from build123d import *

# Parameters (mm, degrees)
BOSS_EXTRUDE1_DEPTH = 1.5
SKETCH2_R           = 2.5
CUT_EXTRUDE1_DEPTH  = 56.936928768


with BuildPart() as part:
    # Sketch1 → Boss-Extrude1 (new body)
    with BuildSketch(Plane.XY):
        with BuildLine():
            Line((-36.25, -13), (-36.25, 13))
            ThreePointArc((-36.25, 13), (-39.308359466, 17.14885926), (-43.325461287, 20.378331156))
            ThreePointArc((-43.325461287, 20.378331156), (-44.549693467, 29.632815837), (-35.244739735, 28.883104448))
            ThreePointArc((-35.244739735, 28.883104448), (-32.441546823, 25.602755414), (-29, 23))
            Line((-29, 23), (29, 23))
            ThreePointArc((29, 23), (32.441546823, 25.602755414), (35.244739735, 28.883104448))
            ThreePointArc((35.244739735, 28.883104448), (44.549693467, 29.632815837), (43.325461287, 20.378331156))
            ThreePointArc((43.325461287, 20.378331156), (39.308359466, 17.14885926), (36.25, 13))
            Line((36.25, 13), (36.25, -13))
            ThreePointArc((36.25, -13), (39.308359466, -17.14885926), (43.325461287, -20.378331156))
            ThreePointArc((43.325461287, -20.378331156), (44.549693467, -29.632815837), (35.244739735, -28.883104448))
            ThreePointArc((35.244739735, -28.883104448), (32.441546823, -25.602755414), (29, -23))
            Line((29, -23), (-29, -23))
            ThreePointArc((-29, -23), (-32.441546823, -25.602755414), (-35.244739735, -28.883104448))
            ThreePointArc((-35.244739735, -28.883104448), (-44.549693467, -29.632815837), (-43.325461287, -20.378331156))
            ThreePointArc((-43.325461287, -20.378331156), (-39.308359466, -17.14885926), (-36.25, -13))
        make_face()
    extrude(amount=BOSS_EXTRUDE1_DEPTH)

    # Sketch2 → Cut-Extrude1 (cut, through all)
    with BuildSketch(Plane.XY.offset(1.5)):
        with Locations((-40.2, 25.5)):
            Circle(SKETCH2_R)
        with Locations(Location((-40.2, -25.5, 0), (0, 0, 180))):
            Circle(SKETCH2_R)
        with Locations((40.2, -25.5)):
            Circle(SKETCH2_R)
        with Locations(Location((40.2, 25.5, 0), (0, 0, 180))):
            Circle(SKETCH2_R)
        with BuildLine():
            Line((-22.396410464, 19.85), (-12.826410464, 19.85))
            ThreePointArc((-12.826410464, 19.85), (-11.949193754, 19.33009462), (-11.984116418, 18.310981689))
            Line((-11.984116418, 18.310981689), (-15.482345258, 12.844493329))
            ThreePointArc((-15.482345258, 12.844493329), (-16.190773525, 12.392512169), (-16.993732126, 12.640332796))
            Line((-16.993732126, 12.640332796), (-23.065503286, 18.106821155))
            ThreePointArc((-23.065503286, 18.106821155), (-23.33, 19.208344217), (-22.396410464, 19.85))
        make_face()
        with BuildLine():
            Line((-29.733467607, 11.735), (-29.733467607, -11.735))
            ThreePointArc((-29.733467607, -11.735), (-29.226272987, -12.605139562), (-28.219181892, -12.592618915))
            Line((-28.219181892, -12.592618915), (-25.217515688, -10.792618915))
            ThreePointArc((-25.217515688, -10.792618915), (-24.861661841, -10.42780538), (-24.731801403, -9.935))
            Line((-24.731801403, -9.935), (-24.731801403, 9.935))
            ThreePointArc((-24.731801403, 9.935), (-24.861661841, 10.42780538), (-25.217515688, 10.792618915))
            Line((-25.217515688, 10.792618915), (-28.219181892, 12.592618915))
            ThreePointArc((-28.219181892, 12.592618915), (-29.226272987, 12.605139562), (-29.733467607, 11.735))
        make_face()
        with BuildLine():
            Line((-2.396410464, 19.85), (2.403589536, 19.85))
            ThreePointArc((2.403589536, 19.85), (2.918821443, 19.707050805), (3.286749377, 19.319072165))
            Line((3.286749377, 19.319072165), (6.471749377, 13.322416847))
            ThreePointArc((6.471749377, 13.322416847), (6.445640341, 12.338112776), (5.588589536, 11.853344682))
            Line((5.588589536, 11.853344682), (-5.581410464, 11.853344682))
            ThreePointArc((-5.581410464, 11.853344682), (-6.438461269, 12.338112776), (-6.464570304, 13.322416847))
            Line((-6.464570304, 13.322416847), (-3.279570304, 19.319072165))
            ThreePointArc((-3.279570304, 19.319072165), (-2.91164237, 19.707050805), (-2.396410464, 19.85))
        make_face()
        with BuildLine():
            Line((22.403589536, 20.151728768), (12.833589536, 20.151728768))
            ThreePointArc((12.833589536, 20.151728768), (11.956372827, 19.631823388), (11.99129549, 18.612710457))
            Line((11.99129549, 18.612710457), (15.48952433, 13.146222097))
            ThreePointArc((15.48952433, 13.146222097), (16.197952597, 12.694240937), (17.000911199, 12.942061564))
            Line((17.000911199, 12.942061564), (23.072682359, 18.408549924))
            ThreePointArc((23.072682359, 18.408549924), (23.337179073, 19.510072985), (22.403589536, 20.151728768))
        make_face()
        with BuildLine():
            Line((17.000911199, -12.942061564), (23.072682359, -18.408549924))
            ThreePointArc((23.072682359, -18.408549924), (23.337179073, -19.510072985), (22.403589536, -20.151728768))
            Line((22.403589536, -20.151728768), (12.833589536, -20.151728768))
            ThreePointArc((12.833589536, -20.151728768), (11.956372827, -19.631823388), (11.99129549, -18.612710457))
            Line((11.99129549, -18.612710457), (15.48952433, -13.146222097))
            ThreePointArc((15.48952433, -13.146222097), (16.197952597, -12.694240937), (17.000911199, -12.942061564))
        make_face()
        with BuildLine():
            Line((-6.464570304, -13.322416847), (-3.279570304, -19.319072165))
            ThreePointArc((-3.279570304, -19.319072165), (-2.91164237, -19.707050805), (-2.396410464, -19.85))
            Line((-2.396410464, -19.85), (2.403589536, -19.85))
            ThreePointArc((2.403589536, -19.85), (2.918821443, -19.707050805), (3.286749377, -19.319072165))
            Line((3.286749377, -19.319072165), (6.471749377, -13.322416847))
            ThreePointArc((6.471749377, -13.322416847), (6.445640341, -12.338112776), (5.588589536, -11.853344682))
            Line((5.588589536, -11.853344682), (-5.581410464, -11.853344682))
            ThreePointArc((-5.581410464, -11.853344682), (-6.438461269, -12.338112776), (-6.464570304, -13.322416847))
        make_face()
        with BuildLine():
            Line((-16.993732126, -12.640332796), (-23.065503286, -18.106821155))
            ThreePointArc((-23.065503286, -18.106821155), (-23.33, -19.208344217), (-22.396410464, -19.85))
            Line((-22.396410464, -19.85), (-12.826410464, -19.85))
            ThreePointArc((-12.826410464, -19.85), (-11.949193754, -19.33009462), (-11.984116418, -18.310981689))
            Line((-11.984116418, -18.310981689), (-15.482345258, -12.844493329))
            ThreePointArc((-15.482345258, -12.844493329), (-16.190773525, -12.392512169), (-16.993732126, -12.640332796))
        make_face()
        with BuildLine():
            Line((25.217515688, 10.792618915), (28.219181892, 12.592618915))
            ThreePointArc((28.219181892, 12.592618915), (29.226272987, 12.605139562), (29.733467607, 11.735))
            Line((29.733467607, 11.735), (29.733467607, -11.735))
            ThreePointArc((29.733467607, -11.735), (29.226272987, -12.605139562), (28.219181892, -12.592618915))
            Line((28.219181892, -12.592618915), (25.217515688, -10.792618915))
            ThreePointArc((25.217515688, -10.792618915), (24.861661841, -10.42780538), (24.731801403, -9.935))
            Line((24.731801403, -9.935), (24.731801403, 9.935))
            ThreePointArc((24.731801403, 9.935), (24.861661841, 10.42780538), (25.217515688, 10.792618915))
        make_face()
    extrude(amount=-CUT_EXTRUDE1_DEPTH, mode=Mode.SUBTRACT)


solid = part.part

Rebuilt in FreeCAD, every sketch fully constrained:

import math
import FreeCAD as App
import Part
import Sketcher
from FreeCAD import Vector
Q = App.Units.Quantity

doc = App.newDocument("Part")
params = doc.addObject("Spreadsheet::Sheet", "Params")
for row, (alias, value) in enumerate([
    ("sketch1_radius", "20 mm"),
    ("sketch1_radius2", "6 mm"),
    ("sketch1_width", "58 mm"),
    ("sketch1_height", "26 mm"),
    ("pad1_length", "1.5 mm"),
    ("sketch2_diameter", "5 mm"),
    ("sketch2_radius", "1 mm"),
    ("sketch2_width", "4.8 mm"),
    ("sketch2_length", "3.5 mm"),
    ("sketch2_width2", "9.57 mm"),
], start=1):
    params.set(f"A{row}", alias)
    params.set(f"B{row}", "=" + value)
    params.setAlias(f"B{row}", alias)

body = doc.addObject("PartDesign::Body", "Body")

# Sketch on XY plane
sketch1 = body.newObject("Sketcher::SketchObject", "Sketch")
sketch1.AttachmentSupport = (doc.getObject("XY_Plane"), [""])
sketch1.MapMode = "FlatFace"
sketch1.addGeometry([
    Part.LineSegment(Vector(-36.25, 13, 0), Vector(-36.25, -13, 0)),  # 0
    Part.ArcOfCircle(Part.Circle(Vector(-53.743666, -3.306102, 0), Vector(0, 0, 1), 20), math.radians(-58.606673), math.radians(-28.992486)),  # 1
    Part.ArcOfCircle(Part.Circle(Vector(-40.2, -25.5, 0), Vector(0, 0, 1), 6), math.radians(121.393327), math.radians(325.677477)),  # 2
    Part.ArcOfCircle(Part.Circle(Vector(-18.727206, -40.160119, 0), Vector(0, 0, 1), 20), math.radians(120.906576), math.radians(145.677477)),  # 3
    Part.LineSegment(Vector(-29, -23, 0), Vector(29, -23, 0)),  # 4
    Part.ArcOfCircle(Part.Circle(Vector(18.727206, -40.160119, 0), Vector(0, 0, 1), 20), math.radians(34.322523), math.radians(59.093424)),  # 5
    Part.ArcOfCircle(Part.Circle(Vector(40.2, -25.5, 0), Vector(0, 0, 1), 6), math.radians(-145.677477), math.radians(58.606673)),  # 6
    Part.ArcOfCircle(Part.Circle(Vector(53.743666, -3.306102, 0), Vector(0, 0, 1), 20), math.radians(-151.007514), math.radians(-121.393327)),  # 7
    Part.LineSegment(Vector(36.25, -13, 0), Vector(36.25, 13, 0)),  # 8
    Part.ArcOfCircle(Part.Circle(Vector(53.743666, 3.306102, 0), Vector(0, 0, 1), 20), math.radians(121.393327), math.radians(151.007514)),  # 9
    Part.ArcOfCircle(Part.Circle(Vector(40.2, 25.5, 0), Vector(0, 0, 1), 6), math.radians(-58.606673), math.radians(145.677477)),  # 10
    Part.ArcOfCircle(Part.Circle(Vector(18.727206, 40.160119, 0), Vector(0, 0, 1), 20), math.radians(-59.093424), math.radians(-34.322523)),  # 11
    Part.LineSegment(Vector(29, 23, 0), Vector(-29, 23, 0)),  # 12
    Part.ArcOfCircle(Part.Circle(Vector(-18.727206, 40.160119, 0), Vector(0, 0, 1), 20), math.radians(-145.677477), math.radians(-120.906576)),  # 13
    Part.ArcOfCircle(Part.Circle(Vector(-40.2, 25.5, 0), Vector(0, 0, 1), 6), math.radians(34.322523), math.radians(238.606673)),  # 14
    Part.ArcOfCircle(Part.Circle(Vector(-53.743666, 3.306102, 0), Vector(0, 0, 1), 20), math.radians(28.992486), math.radians(58.606673)),  # 15
], False)
sketch1.addConstraint([
    Sketcher.Constraint("Coincident", 0, 2, 1, 2),
    Sketcher.Constraint("Tangent", 1, 1, 2, 1),
    Sketcher.Constraint("Tangent", 2, 2, 3, 2),
    Sketcher.Constraint("Coincident", 3, 1, 4, 1),
    Sketcher.Constraint("Coincident", 4, 2, 5, 2),
    Sketcher.Constraint("Tangent", 5, 1, 6, 1),
    Sketcher.Constraint("Tangent", 6, 2, 7, 2),
    Sketcher.Constraint("Coincident", 7, 1, 8, 1),
    Sketcher.Constraint("Coincident", 8, 2, 9, 2),
    Sketcher.Constraint("Tangent", 9, 1, 10, 1),
    Sketcher.Constraint("Tangent", 10, 2, 11, 2),
    Sketcher.Constraint("Coincident", 11, 1, 12, 1),
    Sketcher.Constraint("Coincident", 12, 2, 13, 2),
    Sketcher.Constraint("Tangent", 13, 1, 14, 1),
    Sketcher.Constraint("Tangent", 14, 2, 15, 2),
    Sketcher.Constraint("Coincident", 15, 1, 0, 1),
    Sketcher.Constraint("Vertical", 0),
    Sketcher.Constraint("Horizontal", 4),
    Sketcher.Constraint("Vertical", 8),
    Sketcher.Constraint("Horizontal", 12),
    Sketcher.Constraint("Equal", 1, 3),
    Sketcher.Constraint("Equal", 3, 5),
    Sketcher.Constraint("Equal", 2, 6),
    Sketcher.Constraint("Equal", 5, 7),
    Sketcher.Constraint("Equal", 7, 9),
    Sketcher.Constraint("Equal", 6, 10),
    Sketcher.Constraint("Equal", 9, 11),
    Sketcher.Constraint("Equal", 11, 13),
    Sketcher.Constraint("Equal", 10, 14),
    Sketcher.Constraint("Equal", 13, 15),
    Sketcher.Constraint("Symmetric", 1, 3, 9, 3, -1, 1),
    Sketcher.Constraint("Symmetric", 3, 3, 11, 3, -1, 1),
    Sketcher.Constraint("Symmetric", 5, 3, 13, 3, -1, 1),
    Sketcher.Constraint("Symmetric", 7, 3, 15, 3, -1, 1),
    Sketcher.Constraint("Symmetric", 3, 3, 5, 3, -2),
    Sketcher.Constraint("Symmetric", 1, 3, 7, 3, -2),
    Sketcher.Constraint("Horizontal", 0, 2, 7, 1),
    Sketcher.Constraint("Vertical", 4, 2, 11, 1),
    Sketcher.Constraint("Radius", 1, Q("20 mm")),
    Sketcher.Constraint("Radius", 2, Q("6 mm")),
    Sketcher.Constraint("DistanceX", 4, 1, 4, 2, Q("58 mm")),
    Sketcher.Constraint("DistanceY", 0, 2, 0, 1, Q("26 mm")),
    Sketcher.Constraint("DistanceY", 3, 1, -1, 1, Q("23 mm")),
    Sketcher.Constraint("DistanceY", 6, 3, 10, 3, Q("51 mm")),
    Sketcher.Constraint("DistanceX", 2, 3, -1, 1, Q("40.2 mm")),
    Sketcher.Constraint("DistanceX", 0, 2, -1, 1, Q("36.25 mm")),
])
sketch1.setExpression("Constraints[38]", "Params.sketch1_radius")
sketch1.setExpression("Constraints[39]", "Params.sketch1_radius2")
sketch1.setExpression("Constraints[40]", "Params.sketch1_width")
sketch1.setExpression("Constraints[41]", "Params.sketch1_height")
pad1 = body.newObject("PartDesign::Pad", "Pad")
pad1.Profile = sketch1
pad1.setExpression("Length", "Params.pad1_length")

# Sketch on XY plane
sketch2 = body.newObject("Sketcher::SketchObject", "Sketch001")
sketch2.AttachmentSupport = (doc.getObject("XY_Plane"), [""])
sketch2.MapMode = "FlatFace"
sketch2.AttachmentOffset = App.Placement(Vector(0, 0, 1.5), App.Rotation())
sketch2.addGeometry([
    Part.Circle(Vector(-40.2, 25.5, 0), Vector(0, 0, 1), 2.5),  # 0
    Part.Circle(Vector(-40.2, -25.5, 0), Vector(0, 0, 1), 2.5),  # 1
    Part.Circle(Vector(40.2, -25.5, 0), Vector(0, 0, 1), 2.5),  # 2
    Part.Circle(Vector(40.2, 25.5, 0), Vector(0, 0, 1), 2.5),  # 3
    Part.LineSegment(Vector(-12.82641, 19.85, 0), Vector(-22.39641, 19.85, 0)),  # 4
    Part.ArcOfCircle(Part.Circle(Vector(-22.39641, 18.85, 0), Vector(0, 0, 1), 1), math.radians(90), math.radians(228.002913)),  # 5
    Part.LineSegment(Vector(-23.065503, 18.106821, 0), Vector(-16.993732, 12.640333, 0)),  # 6
    Part.ArcOfCircle(Part.Circle(Vector(-16.324639, 13.383512, 0), Vector(0, 0, 1), 1), math.radians(-131.997087), math.radians(-32.616836)),  # 7
    Part.LineSegment(Vector(-15.482345, 12.844493, 0), Vector(-11.984116, 18.310982, 0)),  # 8
    Part.ArcOfCircle(Part.Circle(Vector(-12.82641, 18.85, 0), Vector(0, 0, 1), 1), math.radians(-32.616836), math.radians(90)),  # 9
    Part.LineSegment(Vector(-29.733468, 11.735, 0), Vector(-29.733468, -11.735, 0)),  # 10
    Part.ArcOfCircle(Part.Circle(Vector(-28.733468, -11.735, 0), Vector(0, 0, 1), 1), math.radians(180), math.radians(300.949723)),  # 11
    Part.LineSegment(Vector(-28.219182, -12.592619, 0), Vector(-25.217516, -10.792619, 0)),  # 12
    Part.ArcOfCircle(Part.Circle(Vector(-25.731801, -9.935, 0), Vector(0, 0, 1), 1), math.radians(-59.050277), math.radians(0)),  # 13
    Part.LineSegment(Vector(-24.731801, -9.935, 0), Vector(-24.731801, 9.935, 0)),  # 14
    Part.ArcOfCircle(Part.Circle(Vector(-25.731801, 9.935, 0), Vector(0, 0, 1), 1), math.radians(0), math.radians(59.050277)),  # 15
    Part.LineSegment(Vector(-25.217516, 10.792619, 0), Vector(-28.219182, 12.592619, 0)),  # 16
    Part.ArcOfCircle(Part.Circle(Vector(-28.733468, 11.735, 0), Vector(0, 0, 1), 1), math.radians(59.050277), math.radians(180)),  # 17
    Part.LineSegment(Vector(2.40359, 19.85, 0), Vector(-2.39641, 19.85, 0)),  # 18
    Part.ArcOfCircle(Part.Circle(Vector(-2.39641, 18.85, 0), Vector(0, 0, 1), 1), math.radians(90), math.radians(152.025914)),  # 19
    Part.LineSegment(Vector(-3.27957, 19.319072, 0), Vector(-6.46457, 13.322417, 0)),  # 20
    Part.ArcOfCircle(Part.Circle(Vector(-5.58141, 12.853345, 0), Vector(0, 0, 1), 1), math.radians(152.025914), math.radians(270)),  # 21
    Part.LineSegment(Vector(-5.58141, 11.853345, 0), Vector(5.58859, 11.853345, 0)),  # 22
    Part.ArcOfCircle(Part.Circle(Vector(5.58859, 12.853345, 0), Vector(0, 0, 1), 1), math.radians(-90), math.radians(27.974086)),  # 23
    Part.LineSegment(Vector(6.471749, 13.322417, 0), Vector(3.286749, 19.319072, 0)),  # 24
    Part.ArcOfCircle(Part.Circle(Vector(2.40359, 18.85, 0), Vector(0, 0, 1), 1), math.radians(27.974086), math.radians(90)),  # 25
    Part.LineSegment(Vector(22.40359, 20.151729, 0), Vector(12.83359, 20.151729, 0)),  # 26
    Part.ArcOfCircle(Part.Circle(Vector(12.83359, 19.151729, 0), Vector(0, 0, 1), 1), math.radians(90), math.radians(212.616836)),  # 27
    Part.LineSegment(Vector(11.991295, 18.61271, 0), Vector(15.489524, 13.146222, 0)),  # 28
    Part.ArcOfCircle(Part.Circle(Vector(16.331818, 13.68524, 0), Vector(0, 0, 1), 1), math.radians(-147.383164), math.radians(-48.002913)),  # 29
    Part.LineSegment(Vector(17.000911, 12.942062, 0), Vector(23.072682, 18.40855, 0)),  # 30
    Part.ArcOfCircle(Part.Circle(Vector(22.40359, 19.151729, 0), Vector(0, 0, 1), 1), math.radians(-48.002913), math.radians(90)),  # 31
    Part.LineSegment(Vector(23.072682, -18.40855, 0), Vector(17.000911, -12.942062, 0)),  # 32
    Part.ArcOfCircle(Part.Circle(Vector(16.331818, -13.68524, 0), Vector(0, 0, 1), 1), math.radians(48.002913), math.radians(147.383164)),  # 33
    Part.LineSegment(Vector(15.489524, -13.146222, 0), Vector(11.991295, -18.61271, 0)),  # 34
    Part.ArcOfCircle(Part.Circle(Vector(12.83359, -19.151729, 0), Vector(0, 0, 1), 1), math.radians(147.383164), math.radians(270)),  # 35
    Part.LineSegment(Vector(12.83359, -20.151729, 0), Vector(22.40359, -20.151729, 0)),  # 36
    Part.ArcOfCircle(Part.Circle(Vector(22.40359, -19.151729, 0), Vector(0, 0, 1), 1), math.radians(-90), math.radians(48.002913)),  # 37
    Part.LineSegment(Vector(-6.46457, -13.322417, 0), Vector(-3.27957, -19.319072, 0)),  # 38
    Part.ArcOfCircle(Part.Circle(Vector(-2.39641, -18.85, 0), Vector(0, 0, 1), 1), math.radians(-152.025914), math.radians(-90)),  # 39
    Part.LineSegment(Vector(-2.39641, -19.85, 0), Vector(2.40359, -19.85, 0)),  # 40
    Part.ArcOfCircle(Part.Circle(Vector(2.40359, -18.85, 0), Vector(0, 0, 1), 1), math.radians(-90), math.radians(-27.974086)),  # 41
    Part.LineSegment(Vector(3.286749, -19.319072, 0), Vector(6.471749, -13.322417, 0)),  # 42
    Part.ArcOfCircle(Part.Circle(Vector(5.58859, -12.853345, 0), Vector(0, 0, 1), 1), math.radians(-27.974086), math.radians(90)),  # 43
    Part.LineSegment(Vector(5.58859, -11.853345, 0), Vector(-5.58141, -11.853345, 0)),  # 44
    Part.ArcOfCircle(Part.Circle(Vector(-5.58141, -12.853345, 0), Vector(0, 0, 1), 1), math.radians(90), math.radians(207.974086)),  # 45
    Part.LineSegment(Vector(-16.993732, -12.640333, 0), Vector(-23.065503, -18.106821, 0)),  # 46
    Part.ArcOfCircle(Part.Circle(Vector(-22.39641, -18.85, 0), Vector(0, 0, 1), 1), math.radians(131.997087), math.radians(270)),  # 47
    Part.LineSegment(Vector(-22.39641, -19.85, 0), Vector(-12.82641, -19.85, 0)),  # 48
    Part.ArcOfCircle(Part.Circle(Vector(-12.82641, -18.85, 0), Vector(0, 0, 1), 1), math.radians(-90), math.radians(32.616836)),  # 49
    Part.LineSegment(Vector(-11.984116, -18.310982, 0), Vector(-15.482345, -12.844493, 0)),  # 50
    Part.ArcOfCircle(Part.Circle(Vector(-16.324639, -13.383512, 0), Vector(0, 0, 1), 1), math.radians(32.616836), math.radians(131.997087)),  # 51
    Part.LineSegment(Vector(28.219182, 12.592619, 0), Vector(25.217516, 10.792619, 0)),  # 52
    Part.ArcOfCircle(Part.Circle(Vector(25.731801, 9.935, 0), Vector(0, 0, 1), 1), math.radians(120.949723), math.radians(180)),  # 53
    Part.LineSegment(Vector(24.731801, 9.935, 0), Vector(24.731801, -9.935, 0)),  # 54
    Part.ArcOfCircle(Part.Circle(Vector(25.731801, -9.935, 0), Vector(0, 0, 1), 1), math.radians(180), math.radians(239.050277)),  # 55
    Part.LineSegment(Vector(25.217516, -10.792619, 0), Vector(28.219182, -12.592619, 0)),  # 56
    Part.ArcOfCircle(Part.Circle(Vector(28.733468, -11.735, 0), Vector(0, 0, 1), 1), math.radians(-120.949723), math.radians(0)),  # 57
    Part.LineSegment(Vector(29.733468, -11.735, 0), Vector(29.733468, 11.735, 0)),  # 58
    Part.ArcOfCircle(Part.Circle(Vector(28.733468, 11.735, 0), Vector(0, 0, 1), 1), math.radians(0), math.radians(120.949723)),  # 59
], False)
sketch2.addConstraint([
    Sketcher.Constraint("Tangent", 4, 2, 5, 1),
    Sketcher.Constraint("Tangent", 5, 2, 6, 1),
    Sketcher.Constraint("Tangent", 6, 2, 7, 1),
    Sketcher.Constraint("Tangent", 7, 2, 8, 1),
    Sketcher.Constraint("Tangent", 8, 2, 9, 1),
    Sketcher.Constraint("Tangent", 9, 2, 4, 1),
    Sketcher.Constraint("Tangent", 10, 2, 11, 1),
    Sketcher.Constraint("Tangent", 11, 2, 12, 1),
    Sketcher.Constraint("Tangent", 12, 2, 13, 1),
    Sketcher.Constraint("Tangent", 13, 2, 14, 1),
    Sketcher.Constraint("Tangent", 14, 2, 15, 1),
    Sketcher.Constraint("Tangent", 15, 2, 16, 1),
    Sketcher.Constraint("Tangent", 16, 2, 17, 1),
    Sketcher.Constraint("Tangent", 17, 2, 10, 1),
    Sketcher.Constraint("Tangent", 18, 2, 19, 1),
    Sketcher.Constraint("Tangent", 19, 2, 20, 1),
    Sketcher.Constraint("Tangent", 20, 2, 21, 1),
    Sketcher.Constraint("Tangent", 21, 2, 22, 1),
    Sketcher.Constraint("Tangent", 22, 2, 23, 1),
    Sketcher.Constraint("Tangent", 23, 2, 24, 1),
    Sketcher.Constraint("Tangent", 24, 2, 25, 1),
    Sketcher.Constraint("Tangent", 25, 2, 18, 1),
    Sketcher.Constraint("Tangent", 26, 2, 27, 1),
    Sketcher.Constraint("Tangent", 27, 2, 28, 1),
    Sketcher.Constraint("Tangent", 28, 2, 29, 1),
    Sketcher.Constraint("Tangent", 29, 2, 30, 1),
    Sketcher.Constraint("Tangent", 30, 2, 31, 1),
    Sketcher.Constraint("Tangent", 31, 2, 26, 1),
    Sketcher.Constraint("Tangent", 32, 2, 33, 1),
    Sketcher.Constraint("Tangent", 33, 2, 34, 1),
    Sketcher.Constraint("Tangent", 34, 2, 35, 1),
    Sketcher.Constraint("Tangent", 35, 2, 36, 1),
    Sketcher.Constraint("Tangent", 36, 2, 37, 1),
    Sketcher.Constraint("Tangent", 37, 2, 32, 1),
    Sketcher.Constraint("Tangent", 38, 2, 39, 1),
    Sketcher.Constraint("Tangent", 39, 2, 40, 1),
    Sketcher.Constraint("Tangent", 40, 2, 41, 1),
    Sketcher.Constraint("Tangent", 41, 2, 42, 1),
    Sketcher.Constraint("Tangent", 42, 2, 43, 1),
    Sketcher.Constraint("Tangent", 43, 2, 44, 1),
    Sketcher.Constraint("Tangent", 44, 2, 45, 1),
    Sketcher.Constraint("Tangent", 45, 2, 38, 1),
    Sketcher.Constraint("Tangent", 46, 2, 47, 1),
    Sketcher.Constraint("Tangent", 47, 2, 48, 1),
    Sketcher.Constraint("Tangent", 48, 2, 49, 1),
    Sketcher.Constraint("Tangent", 49, 2, 50, 1),
    Sketcher.Constraint("Tangent", 50, 2, 51, 1),
    Sketcher.Constraint("Tangent", 51, 2, 46, 1),
    Sketcher.Constraint("Tangent", 52, 2, 53, 1),
    Sketcher.Constraint("Tangent", 53, 2, 54, 1),
    Sketcher.Constraint("Tangent", 54, 2, 55, 1),
    Sketcher.Constraint("Tangent", 55, 2, 56, 1),
    Sketcher.Constraint("Tangent", 56, 2, 57, 1),
    Sketcher.Constraint("Tangent", 57, 2, 58, 1),
    Sketcher.Constraint("Tangent", 58, 2, 59, 1),
    Sketcher.Constraint("Tangent", 59, 2, 52, 1),
    Sketcher.Constraint("Horizontal", 4),
    Sketcher.Constraint("Vertical", 10),
    Sketcher.Constraint("Vertical", 14),
    Sketcher.Constraint("Horizontal", 18),
    Sketcher.Constraint("Horizontal", 22),
    Sketcher.Constraint("Horizontal", 26),
    Sketcher.Constraint("Horizontal", 36),
    Sketcher.Constraint("Horizontal", 40),
    Sketcher.Constraint("Horizontal", 44),
    Sketcher.Constraint("Horizontal", 48),
    Sketcher.Constraint("Vertical", 54),
    Sketcher.Constraint("Vertical", 58),
    Sketcher.Constraint("Equal", 0, 1),
    Sketcher.Constraint("Equal", 1, 2),
    Sketcher.Constraint("Equal", 2, 3),
    Sketcher.Constraint("Equal", 5, 7),
    Sketcher.Constraint("Equal", 7, 9),
    Sketcher.Constraint("Equal", 9, 11),
    Sketcher.Constraint("Equal", 11, 13),
    Sketcher.Constraint("Equal", 13, 15),
    Sketcher.Constraint("Equal", 15, 17),
    Sketcher.Constraint("Equal", 17, 19),
    Sketcher.Constraint("Equal", 19, 21),
    Sketcher.Constraint("Equal", 21, 23),
    Sketcher.Constraint("Equal", 23, 25),
    Sketcher.Constraint("Equal", 25, 27),
    Sketcher.Constraint("Equal", 27, 29),
    Sketcher.Constraint("Equal", 29, 31),
    Sketcher.Constraint("Equal", 31, 33),
    Sketcher.Constraint("Equal", 33, 35),
    Sketcher.Constraint("Equal", 35, 37),
    Sketcher.Constraint("Equal", 37, 39),
    Sketcher.Constraint("Equal", 39, 41),
    Sketcher.Constraint("Equal", 41, 43),
    Sketcher.Constraint("Equal", 43, 45),
    Sketcher.Constraint("Equal", 45, 47),
    Sketcher.Constraint("Equal", 47, 49),
    Sketcher.Constraint("Equal", 49, 51),
    Sketcher.Constraint("Equal", 51, 53),
    Sketcher.Constraint("Equal", 53, 55),
    Sketcher.Constraint("Equal", 55, 57),
    Sketcher.Constraint("Equal", 57, 59),
    Sketcher.Constraint("Symmetric", 0, 3, 2, 3, -1, 1),
    Sketcher.Constraint("Symmetric", 1, 3, 3, 3, -1, 1),
    Sketcher.Constraint("Symmetric", 13, 3, 53, 3, -1, 1),
    Sketcher.Constraint("Symmetric", 17, 3, 57, 3, -1, 1),
    Sketcher.Constraint("Symmetric", 1, 3, 2, 3, -2),
    Sketcher.Constraint("Symmetric", 15, 2, 52, 2, -2),
    Sketcher.Constraint("Symmetric", 12, 2, 55, 2, -2),
    Sketcher.Constraint("Symmetric", 29, 3, 33, 3, -1),
    Sketcher.Constraint("Symmetric", 27, 3, 35, 3, -1),
    Sketcher.Constraint("Symmetric", 19, 3, 39, 3, -1),
    Sketcher.Constraint("Symmetric", 23, 3, 43, 3, -1),
    Sketcher.Constraint("Symmetric", 5, 3, 47, 3, -1),
    Sketcher.Constraint("Symmetric", 7, 3, 51, 3, -1),
    Sketcher.Constraint("Parallel", 6, 32),
    Sketcher.Constraint("Parallel", 8, 34),
    Sketcher.Constraint("Parallel", 24, 38),
    Sketcher.Constraint("Parallel", 20, 42),
    Sketcher.Constraint("Parallel", 30, 46),
    Sketcher.Constraint("Parallel", 28, 50),
    Sketcher.Constraint("Horizontal", 9, 3, 19, 3),
    Sketcher.Constraint("Horizontal", 20, 2, 23, 2),
    Sketcher.Constraint("Equal", 4, 26),
    Sketcher.Constraint("Diameter", 0, Q("5 mm")),
    Sketcher.Constraint("Radius", 5, Q("1 mm")),
    Sketcher.Constraint("DistanceX", 18, 2, 18, 1, Q("4.8 mm")),
    Sketcher.Constraint("Distance", 12, Q("3.5 mm")),
    Sketcher.Constraint("DistanceX", 4, 2, 4, 1, Q("9.57 mm")),
    Sketcher.Constraint("DistanceX", 22, 1, 22, 2, Q("11.17 mm")),
    Sketcher.Constraint("DistanceY", 10, 2, 10, 1, Q("23.47 mm")),
    Sketcher.Constraint("DistanceY", 14, 1, 14, 2, Q("19.87 mm")),
    Sketcher.Constraint("DistanceX", 0, 3, -1, 1, Q("40.2 mm")),
    Sketcher.Constraint("DistanceY", -1, 1, 0, 3, Q("25.5 mm")),
    Sketcher.Constraint("Distance", 6, Q("8.17 mm")),
    Sketcher.Constraint("Distance", 8, Q("6.49 mm")),
    Sketcher.Constraint("Distance", 20, Q("6.79 mm")),
    Sketcher.Constraint("DistanceY", -1, 1, 5, 3, Q("18.85 mm")),
    Sketcher.Constraint("DistanceX", 13, 3, -1, 1, Q("25.731801 mm")),
    Sketcher.Constraint("DistanceX", 5, 3, -1, 1, Q("22.39641 mm")),
    Sketcher.Constraint("DistanceX", 19, 3, -1, 1, Q("2.39641 mm")),
    Sketcher.Constraint("DistanceX", -1, 1, 27, 3, Q("12.83359 mm")),
    Sketcher.Constraint("DistanceY", -1, 1, 27, 3, Q("19.151729 mm")),
])
sketch2.setExpression("Constraints[120]", "Params.sketch2_diameter")
sketch2.setExpression("Constraints[121]", "Params.sketch2_radius")
sketch2.setExpression("Constraints[122]", "Params.sketch2_width")
sketch2.setExpression("Constraints[123]", "Params.sketch2_length")
sketch2.setExpression("Constraints[124]", "Params.sketch2_width2")
pocket1 = body.newObject("PartDesign::Pocket", "Pocket")
pocket1.Profile = sketch2
pocket1.Type = "ThroughAll"

doc.recompute()
